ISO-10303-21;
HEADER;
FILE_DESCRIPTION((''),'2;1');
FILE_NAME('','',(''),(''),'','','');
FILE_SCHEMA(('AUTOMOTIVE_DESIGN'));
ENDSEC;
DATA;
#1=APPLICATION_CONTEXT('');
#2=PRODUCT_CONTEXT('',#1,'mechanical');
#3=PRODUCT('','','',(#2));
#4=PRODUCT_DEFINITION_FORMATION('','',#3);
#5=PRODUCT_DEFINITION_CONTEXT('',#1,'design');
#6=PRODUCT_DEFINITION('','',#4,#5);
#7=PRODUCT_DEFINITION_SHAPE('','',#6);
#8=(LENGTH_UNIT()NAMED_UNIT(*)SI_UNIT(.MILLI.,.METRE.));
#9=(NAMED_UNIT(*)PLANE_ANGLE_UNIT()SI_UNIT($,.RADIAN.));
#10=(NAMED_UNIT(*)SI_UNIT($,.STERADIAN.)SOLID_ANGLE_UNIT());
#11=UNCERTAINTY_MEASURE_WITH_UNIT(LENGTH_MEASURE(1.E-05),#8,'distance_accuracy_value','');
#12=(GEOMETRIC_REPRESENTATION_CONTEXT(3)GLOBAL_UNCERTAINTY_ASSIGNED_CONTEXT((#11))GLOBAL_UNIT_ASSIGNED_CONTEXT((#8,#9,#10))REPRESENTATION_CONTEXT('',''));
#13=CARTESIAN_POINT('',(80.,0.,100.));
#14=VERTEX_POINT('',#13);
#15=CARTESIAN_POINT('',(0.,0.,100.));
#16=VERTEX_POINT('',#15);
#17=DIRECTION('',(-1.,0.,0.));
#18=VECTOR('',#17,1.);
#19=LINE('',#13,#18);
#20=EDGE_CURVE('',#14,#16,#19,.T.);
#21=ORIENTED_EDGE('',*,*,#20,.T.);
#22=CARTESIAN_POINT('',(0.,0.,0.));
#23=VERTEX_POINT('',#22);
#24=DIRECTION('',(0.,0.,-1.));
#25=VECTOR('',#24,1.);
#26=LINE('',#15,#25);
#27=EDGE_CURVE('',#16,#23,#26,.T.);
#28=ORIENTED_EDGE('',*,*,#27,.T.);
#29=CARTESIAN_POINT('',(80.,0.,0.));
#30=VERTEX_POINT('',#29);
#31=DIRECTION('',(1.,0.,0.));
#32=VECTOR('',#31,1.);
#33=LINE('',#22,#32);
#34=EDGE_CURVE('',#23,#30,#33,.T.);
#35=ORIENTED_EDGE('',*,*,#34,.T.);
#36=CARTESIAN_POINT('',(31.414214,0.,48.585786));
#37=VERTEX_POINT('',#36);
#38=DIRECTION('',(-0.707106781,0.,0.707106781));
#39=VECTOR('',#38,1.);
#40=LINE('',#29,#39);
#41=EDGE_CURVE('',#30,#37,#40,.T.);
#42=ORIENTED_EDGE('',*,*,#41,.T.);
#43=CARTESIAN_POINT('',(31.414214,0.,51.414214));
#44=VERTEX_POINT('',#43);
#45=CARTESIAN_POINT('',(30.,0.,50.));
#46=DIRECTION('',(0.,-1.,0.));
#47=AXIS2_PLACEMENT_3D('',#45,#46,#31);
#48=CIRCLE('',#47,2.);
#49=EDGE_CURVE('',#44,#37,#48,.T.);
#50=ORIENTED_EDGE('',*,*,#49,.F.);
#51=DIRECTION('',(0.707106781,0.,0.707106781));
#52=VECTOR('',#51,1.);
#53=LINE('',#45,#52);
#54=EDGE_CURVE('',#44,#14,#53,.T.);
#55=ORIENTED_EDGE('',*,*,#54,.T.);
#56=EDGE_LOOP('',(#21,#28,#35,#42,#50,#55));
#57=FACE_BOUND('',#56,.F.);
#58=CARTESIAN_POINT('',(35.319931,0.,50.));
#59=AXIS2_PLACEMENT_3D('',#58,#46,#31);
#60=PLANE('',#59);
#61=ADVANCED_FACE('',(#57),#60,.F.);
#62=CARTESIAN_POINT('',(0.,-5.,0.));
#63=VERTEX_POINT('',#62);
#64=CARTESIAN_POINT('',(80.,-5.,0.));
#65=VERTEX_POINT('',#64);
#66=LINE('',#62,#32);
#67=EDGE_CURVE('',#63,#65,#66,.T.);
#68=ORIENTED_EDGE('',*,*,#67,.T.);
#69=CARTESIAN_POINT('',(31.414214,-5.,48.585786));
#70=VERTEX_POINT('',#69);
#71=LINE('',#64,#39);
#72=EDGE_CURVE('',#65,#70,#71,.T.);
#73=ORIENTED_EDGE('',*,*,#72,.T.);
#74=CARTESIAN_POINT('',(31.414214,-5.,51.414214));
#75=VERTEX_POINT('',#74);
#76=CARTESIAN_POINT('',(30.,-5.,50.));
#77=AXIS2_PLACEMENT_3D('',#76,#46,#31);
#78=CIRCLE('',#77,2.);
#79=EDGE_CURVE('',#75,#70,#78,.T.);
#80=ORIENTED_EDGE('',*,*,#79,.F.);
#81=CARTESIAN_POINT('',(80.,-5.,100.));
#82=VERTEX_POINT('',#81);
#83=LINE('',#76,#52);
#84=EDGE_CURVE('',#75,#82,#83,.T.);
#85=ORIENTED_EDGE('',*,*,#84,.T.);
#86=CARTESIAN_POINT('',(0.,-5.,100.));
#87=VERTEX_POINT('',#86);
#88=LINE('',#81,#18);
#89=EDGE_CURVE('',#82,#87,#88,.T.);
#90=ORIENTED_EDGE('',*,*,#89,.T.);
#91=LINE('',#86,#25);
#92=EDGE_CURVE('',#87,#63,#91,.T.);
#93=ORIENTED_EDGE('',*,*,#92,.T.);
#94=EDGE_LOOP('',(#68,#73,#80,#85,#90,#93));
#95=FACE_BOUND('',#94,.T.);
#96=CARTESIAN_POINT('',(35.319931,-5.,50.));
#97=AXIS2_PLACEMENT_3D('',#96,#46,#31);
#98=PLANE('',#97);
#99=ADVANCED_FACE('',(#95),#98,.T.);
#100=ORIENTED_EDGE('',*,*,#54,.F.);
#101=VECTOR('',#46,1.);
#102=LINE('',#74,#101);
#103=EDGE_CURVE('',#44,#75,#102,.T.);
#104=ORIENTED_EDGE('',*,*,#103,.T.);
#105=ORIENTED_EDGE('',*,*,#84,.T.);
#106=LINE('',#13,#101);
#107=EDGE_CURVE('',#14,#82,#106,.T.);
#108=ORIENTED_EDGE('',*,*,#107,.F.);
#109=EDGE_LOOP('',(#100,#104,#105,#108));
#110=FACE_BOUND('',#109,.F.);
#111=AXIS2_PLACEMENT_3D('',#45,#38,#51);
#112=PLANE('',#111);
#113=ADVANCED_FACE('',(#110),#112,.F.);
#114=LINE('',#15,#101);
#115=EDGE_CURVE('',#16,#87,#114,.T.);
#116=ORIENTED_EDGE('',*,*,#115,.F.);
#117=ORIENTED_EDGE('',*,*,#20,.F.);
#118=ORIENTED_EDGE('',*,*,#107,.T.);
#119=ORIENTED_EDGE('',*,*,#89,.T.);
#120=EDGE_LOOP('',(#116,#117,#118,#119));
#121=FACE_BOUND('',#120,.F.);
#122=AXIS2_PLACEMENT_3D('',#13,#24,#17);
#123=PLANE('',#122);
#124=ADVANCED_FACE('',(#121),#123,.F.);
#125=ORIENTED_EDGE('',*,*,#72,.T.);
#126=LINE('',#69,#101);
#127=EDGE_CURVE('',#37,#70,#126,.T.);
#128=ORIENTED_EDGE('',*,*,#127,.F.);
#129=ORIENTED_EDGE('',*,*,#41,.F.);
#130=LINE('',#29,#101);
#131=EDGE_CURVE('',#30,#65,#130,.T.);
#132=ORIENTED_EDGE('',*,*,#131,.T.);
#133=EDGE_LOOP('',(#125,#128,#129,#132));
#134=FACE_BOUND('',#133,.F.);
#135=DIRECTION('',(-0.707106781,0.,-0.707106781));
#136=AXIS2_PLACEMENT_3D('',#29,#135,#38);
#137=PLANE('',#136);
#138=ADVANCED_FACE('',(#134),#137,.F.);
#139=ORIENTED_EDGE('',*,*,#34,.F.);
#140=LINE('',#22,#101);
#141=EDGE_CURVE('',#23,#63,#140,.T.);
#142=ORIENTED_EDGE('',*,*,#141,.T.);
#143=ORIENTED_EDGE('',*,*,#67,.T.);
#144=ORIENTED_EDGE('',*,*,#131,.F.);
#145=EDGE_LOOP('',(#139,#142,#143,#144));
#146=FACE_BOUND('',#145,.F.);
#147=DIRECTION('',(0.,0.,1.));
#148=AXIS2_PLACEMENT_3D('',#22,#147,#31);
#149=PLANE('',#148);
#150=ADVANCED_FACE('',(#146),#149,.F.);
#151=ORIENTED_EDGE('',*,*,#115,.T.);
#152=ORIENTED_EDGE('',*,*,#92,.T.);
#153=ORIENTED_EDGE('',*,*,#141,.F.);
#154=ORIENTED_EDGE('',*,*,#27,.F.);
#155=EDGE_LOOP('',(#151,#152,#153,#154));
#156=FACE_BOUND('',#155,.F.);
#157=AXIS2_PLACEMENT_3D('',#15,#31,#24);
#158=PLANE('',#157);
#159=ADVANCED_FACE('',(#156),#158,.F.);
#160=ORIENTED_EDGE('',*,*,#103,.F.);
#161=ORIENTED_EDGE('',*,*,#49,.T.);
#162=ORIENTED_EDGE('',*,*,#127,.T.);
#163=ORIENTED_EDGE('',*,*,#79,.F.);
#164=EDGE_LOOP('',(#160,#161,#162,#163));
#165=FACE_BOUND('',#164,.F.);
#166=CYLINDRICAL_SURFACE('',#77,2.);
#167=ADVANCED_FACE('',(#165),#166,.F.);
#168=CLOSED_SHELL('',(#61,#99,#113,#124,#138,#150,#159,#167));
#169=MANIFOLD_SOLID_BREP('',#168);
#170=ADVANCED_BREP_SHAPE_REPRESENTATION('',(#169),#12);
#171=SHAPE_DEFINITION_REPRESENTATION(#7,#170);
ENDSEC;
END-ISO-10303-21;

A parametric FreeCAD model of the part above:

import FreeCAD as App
import Part
import Sketcher
from FreeCAD import Vector
Q = App.Units.Quantity

doc = App.newDocument("Part")
body = doc.addObject("PartDesign::Body", "Body")

sketch1 = body.newObject("Sketcher::SketchObject", "Sketch")
sketch1.AttachmentSupport = (doc.getObject("XZ_Plane"), [""])
sketch1.MapMode = "FlatFace"
sketch1.addGeometry(Part.LineSegment(Vector(0, 100, 0), Vector(0, 0, 0)), False)
sketch1.addGeometry(Part.LineSegment(Vector(0, 0, 0), Vector(80, 0, 0)), False)
sketch1.addGeometry(Part.LineSegment(Vector(80, 0, 0), Vector(30, 50, 0)), False)
sketch1.addGeometry(Part.LineSegment(Vector(30, 50, 0), Vector(80, 100, 0)), False)
sketch1.addGeometry(Part.LineSegment(Vector(80, 100, 0), Vector(0, 100, 0)), False)
sketch1.addConstraint(Sketcher.Constraint("Coincident", 0, 2, 1, 1))
sketch1.addConstraint(Sketcher.Constraint("Coincident", 1, 2, 2, 1))
sketch1.addConstraint(Sketcher.Constraint("Coincident", 2, 2, 3, 1))
sketch1.addConstraint(Sketcher.Constraint("Coincident", 3, 2, 4, 1))
sketch1.addConstraint(Sketcher.Constraint("Coincident", 4, 2, 0, 1))
sketch1.addConstraint(Sketcher.Constraint("Vertical", 0))
sketch1.addConstraint(Sketcher.Constraint("Horizontal", 1))
sketch1.addConstraint(Sketcher.Constraint("Horizontal", 4))
sketch1.addConstraint(Sketcher.Constraint("Coincident", 0, 2, -1, 1))
sketch1.addConstraint(Sketcher.Constraint("Perpendicular", 2, 3))
sketch1.addConstraint(Sketcher.Constraint("Vertical", 1, 2, 3, 2))
sketch1.addConstraint(Sketcher.Constraint("Equal", 2, 3))
sketch1.addConstraint(Sketcher.Constraint("DistanceX", 1, 1, 1, 2, Q("80 mm")))
sketch1.addConstraint(Sketcher.Constraint("DistanceY", 0, 2, 0, 1, Q("100 mm")))
pad1 = body.newObject("PartDesign::Pad", "Pad")
pad1.Profile = sketch1
pad1.Length = 5

sketch2 = body.newObject("Sketcher::SketchObject", "Sketch001")
sketch2.AttachmentSupport = (doc.getObject("XZ_Plane"), [""])
sketch2.MapMode = "FlatFace"
sketch2.AttachmentOffset = App.Placement(Vector(0, 0, 5), App.Rotation())
sketch2.addGeometry(Part.Circle(Vector(30, 50, 0), Vector(0, 0, 1), 2), False)
sketch2.addConstraint(Sketcher.Constraint("Diameter", 0, Q("4 mm")))
sketch2.addConstraint(Sketcher.Constraint("DistanceX", -1, 1, 0, 3, Q("30 mm")))
sketch2.addConstraint(Sketcher.Constraint("DistanceY", -1, 1, 0, 3, Q("50 mm")))
pocket1 = body.newObject("PartDesign::Pocket", "Pocket")
pocket1.Profile = sketch2
pocket1.Type = "ThroughAll"

doc.recompute()
